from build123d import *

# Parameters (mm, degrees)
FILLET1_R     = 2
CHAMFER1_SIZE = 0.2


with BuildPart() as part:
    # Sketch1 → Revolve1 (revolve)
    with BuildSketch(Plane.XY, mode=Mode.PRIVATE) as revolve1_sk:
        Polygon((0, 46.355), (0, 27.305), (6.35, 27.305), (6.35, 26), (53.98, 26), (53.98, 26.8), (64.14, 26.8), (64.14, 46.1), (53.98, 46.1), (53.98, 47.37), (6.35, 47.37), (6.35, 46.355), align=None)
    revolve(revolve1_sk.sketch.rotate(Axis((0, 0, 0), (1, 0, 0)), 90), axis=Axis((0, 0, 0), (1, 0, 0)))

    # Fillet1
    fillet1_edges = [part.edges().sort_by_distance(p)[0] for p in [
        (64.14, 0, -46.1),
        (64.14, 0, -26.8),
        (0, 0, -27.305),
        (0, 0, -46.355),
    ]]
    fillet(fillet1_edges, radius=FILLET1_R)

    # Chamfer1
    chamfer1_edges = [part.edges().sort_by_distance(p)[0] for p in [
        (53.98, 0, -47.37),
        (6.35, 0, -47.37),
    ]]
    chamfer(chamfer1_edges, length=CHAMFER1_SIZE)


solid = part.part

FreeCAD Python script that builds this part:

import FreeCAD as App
import Part
import Sketcher
from FreeCAD import Vector
Q = App.Units.Quantity


def edges_at(feature, points):
    """Names of the edges that pass closest to the given points."""
    edges = feature.Shape.Edges
    near = lambda p: min(range(len(edges)), key=lambda i: edges[i].distToShape(Part.Vertex(*p))[0])
    return sorted({f"Edge{near(p) + 1}" for p in points})

doc = App.newDocument("Part")
params = doc.addObject("Spreadsheet::Sheet", "Params")
for row, (alias, value) in enumerate([
    ("sketch1_height", "0.8 mm"),
    ("sketch1_height2", "19.3 mm"),
    ("sketch1_width", "6.35 mm"),
    ("sketch1_width2", "47.63 mm"),
    ("sketch1_width3", "10.16 mm"),
    ("revolution_angle", "360 deg"),
    ("fillet_radius", "2 mm"),
    ("chamfer_size", "0.2 mm"),
], start=1):
    params.set(f"A{row}", alias)
    params.set(f"B{row}", "=" + value)
    params.setAlias(f"B{row}", alias)

body = doc.addObject("PartDesign::Body", "Body")

sketch1 = doc.addObject("Sketcher::SketchObject", "Sketch")
body.addObject(sketch1)
sketch1.AttachmentSupport = (doc.XY_Plane, [""])
sketch1.MapMode = "FlatFace"
sketch1.addGeometry([
    Part.LineSegment(Vector(0, 46.4, 0), Vector(0, 27.3, 0)),
    Part.LineSegment(Vector(0, 27.3, 0), Vector(6.3, 27.3, 0)),
    Part.LineSegment(Vector(6.3, 27.3, 0), Vector(6.3, 26, 0)),
    Part.LineSegment(Vector(6.3, 26, 0), Vector(54, 26, 0)),
    Part.LineSegment(Vector(54, 26, 0), Vector(54, 26.8, 0)),
    Part.LineSegment(Vector(54, 26.8, 0), Vector(64.1, 26.8, 0)),
    Part.LineSegment(Vector(64.1, 26.8, 0), Vector(64.1, 46.1, 0)),
    Part.LineSegment(Vector(64.1, 46.1, 0), Vector(54, 46.1, 0)),
    Part.LineSegment(Vector(54, 46.1, 0), Vector(54, 47.4, 0)),
    Part.LineSegment(Vector(54, 47.4, 0), Vector(6.3, 47.4, 0)),
    Part.LineSegment(Vector(6.3, 47.4, 0), Vector(6.3, 46.4, 0)),
    Part.LineSegment(Vector(6.3, 46.4, 0), Vector(0, 46.4, 0)),
], False)
sketch1.addConstraint([
    Sketcher.Constraint("Coincident", 0, 2, 1, 1),
    Sketcher.Constraint("Coincident", 1, 2, 2, 1),
    Sketcher.Constraint("Coincident", 2, 2, 3, 1),
    Sketcher.Constraint("Coincident", 3, 2, 4, 1),
    Sketcher.Constraint("Coincident", 4, 2, 5, 1),
    Sketcher.Constraint("Coincident", 5, 2, 6, 1),
    Sketcher.Constraint("Coincident", 6, 2, 7, 1),
    Sketcher.Constraint("Coincident", 7, 2, 8, 1),
    Sketcher.Constraint("Coincident", 8, 2, 9, 1),
    Sketcher.Constraint("Coincident", 9, 2, 10, 1),
    Sketcher.Constraint("Coincident", 10, 2, 11, 1),
    Sketcher.Constraint("Coincident", 11, 2, 0, 1),
    Sketcher.Constraint("Vertical", 0),
    Sketcher.Constraint("Horizontal", 1),
    Sketcher.Constraint("Vertical", 2),
    Sketcher.Constraint("Horizontal", 3),
    Sketcher.Constraint("Vertical", 4),
    Sketcher.Constraint("Horizontal", 5),
    Sketcher.Constraint("Vertical", 6),
    Sketcher.Constraint("Horizontal", 7),
    Sketcher.Constraint("Vertical", 8),
    Sketcher.Constraint("Horizontal", 9),
    Sketcher.Constraint("Vertical", 10),
    Sketcher.Constraint("Horizontal", 11),
    Sketcher.Constraint("PointOnObject", 0, 2, -2),
    Sketcher.Constraint("Vertical", 4, 2, 7, 2),
    Sketcher.Constraint("Vertical", 2, 2, 9, 2),
    Sketcher.Constraint("DistanceY", 4, 1, 4, 2, Q("0.8 mm")),
    Sketcher.Constraint("DistanceY", 6, 1, 6, 2, Q("19.3 mm")),
    Sketcher.Constraint("DistanceY", -1, 1, 2, 2, Q("26 mm")),
    Sketcher.Constraint("DistanceX", 1, 1, 1, 2, Q("6.35 mm")),
    Sketcher.Constraint("DistanceX", 3, 1, 3, 2, Q("47.63 mm")),
    Sketcher.Constraint("DistanceX", 5, 1, 5, 2, Q("10.16 mm")),
    Sketcher.Constraint("DistanceY", 0, 2, 0, 1, Q("19.05 mm")),
    Sketcher.Constraint("DistanceY", 8, 1, 8, 2, Q("1.27 mm")),
    Sketcher.Constraint("DistanceY", 2, 2, 2, 1, Q("1.305 mm")),
])
sketch1.setExpression("Constraints[27]", "Params.sketch1_height")
sketch1.setExpression("Constraints[28]", "Params.sketch1_height2")
sketch1.setExpression("Constraints[30]", "Params.sketch1_width")
sketch1.setExpression("Constraints[31]", "Params.sketch1_width2")
sketch1.setExpression("Constraints[32]", "Params.sketch1_width3")
revolution = doc.addObject("PartDesign::Revolution", "Revolution")
body.addObject(revolution)
revolution.Profile = sketch1
revolution.ReferenceAxis = (sketch1, ["H_Axis"])
revolution.setExpression("Angle", "Params.revolution_angle")
doc.recompute()

fillet = doc.addObject("PartDesign::Fillet", "Fillet")
body.addObject(fillet)
fillet.Base = (revolution, edges_at(revolution, [
    (64.14, 0, -46.1),
    (64.14, 0, -26.8),
    (0, 0, -27.305),
    (0, 0, -46.355),
]))
fillet.setExpression("Radius", "Params.fillet_radius")
doc.recompute()

chamfer = doc.addObject("PartDesign::Chamfer", "Chamfer")
body.addObject(chamfer)
chamfer.Base = (fillet, edges_at(fillet, [(53.98, 0, -47.37), (6.35, 0, -47.37)]))
chamfer.setExpression("Size", "Params.chamfer_size")

doc.recompute()
